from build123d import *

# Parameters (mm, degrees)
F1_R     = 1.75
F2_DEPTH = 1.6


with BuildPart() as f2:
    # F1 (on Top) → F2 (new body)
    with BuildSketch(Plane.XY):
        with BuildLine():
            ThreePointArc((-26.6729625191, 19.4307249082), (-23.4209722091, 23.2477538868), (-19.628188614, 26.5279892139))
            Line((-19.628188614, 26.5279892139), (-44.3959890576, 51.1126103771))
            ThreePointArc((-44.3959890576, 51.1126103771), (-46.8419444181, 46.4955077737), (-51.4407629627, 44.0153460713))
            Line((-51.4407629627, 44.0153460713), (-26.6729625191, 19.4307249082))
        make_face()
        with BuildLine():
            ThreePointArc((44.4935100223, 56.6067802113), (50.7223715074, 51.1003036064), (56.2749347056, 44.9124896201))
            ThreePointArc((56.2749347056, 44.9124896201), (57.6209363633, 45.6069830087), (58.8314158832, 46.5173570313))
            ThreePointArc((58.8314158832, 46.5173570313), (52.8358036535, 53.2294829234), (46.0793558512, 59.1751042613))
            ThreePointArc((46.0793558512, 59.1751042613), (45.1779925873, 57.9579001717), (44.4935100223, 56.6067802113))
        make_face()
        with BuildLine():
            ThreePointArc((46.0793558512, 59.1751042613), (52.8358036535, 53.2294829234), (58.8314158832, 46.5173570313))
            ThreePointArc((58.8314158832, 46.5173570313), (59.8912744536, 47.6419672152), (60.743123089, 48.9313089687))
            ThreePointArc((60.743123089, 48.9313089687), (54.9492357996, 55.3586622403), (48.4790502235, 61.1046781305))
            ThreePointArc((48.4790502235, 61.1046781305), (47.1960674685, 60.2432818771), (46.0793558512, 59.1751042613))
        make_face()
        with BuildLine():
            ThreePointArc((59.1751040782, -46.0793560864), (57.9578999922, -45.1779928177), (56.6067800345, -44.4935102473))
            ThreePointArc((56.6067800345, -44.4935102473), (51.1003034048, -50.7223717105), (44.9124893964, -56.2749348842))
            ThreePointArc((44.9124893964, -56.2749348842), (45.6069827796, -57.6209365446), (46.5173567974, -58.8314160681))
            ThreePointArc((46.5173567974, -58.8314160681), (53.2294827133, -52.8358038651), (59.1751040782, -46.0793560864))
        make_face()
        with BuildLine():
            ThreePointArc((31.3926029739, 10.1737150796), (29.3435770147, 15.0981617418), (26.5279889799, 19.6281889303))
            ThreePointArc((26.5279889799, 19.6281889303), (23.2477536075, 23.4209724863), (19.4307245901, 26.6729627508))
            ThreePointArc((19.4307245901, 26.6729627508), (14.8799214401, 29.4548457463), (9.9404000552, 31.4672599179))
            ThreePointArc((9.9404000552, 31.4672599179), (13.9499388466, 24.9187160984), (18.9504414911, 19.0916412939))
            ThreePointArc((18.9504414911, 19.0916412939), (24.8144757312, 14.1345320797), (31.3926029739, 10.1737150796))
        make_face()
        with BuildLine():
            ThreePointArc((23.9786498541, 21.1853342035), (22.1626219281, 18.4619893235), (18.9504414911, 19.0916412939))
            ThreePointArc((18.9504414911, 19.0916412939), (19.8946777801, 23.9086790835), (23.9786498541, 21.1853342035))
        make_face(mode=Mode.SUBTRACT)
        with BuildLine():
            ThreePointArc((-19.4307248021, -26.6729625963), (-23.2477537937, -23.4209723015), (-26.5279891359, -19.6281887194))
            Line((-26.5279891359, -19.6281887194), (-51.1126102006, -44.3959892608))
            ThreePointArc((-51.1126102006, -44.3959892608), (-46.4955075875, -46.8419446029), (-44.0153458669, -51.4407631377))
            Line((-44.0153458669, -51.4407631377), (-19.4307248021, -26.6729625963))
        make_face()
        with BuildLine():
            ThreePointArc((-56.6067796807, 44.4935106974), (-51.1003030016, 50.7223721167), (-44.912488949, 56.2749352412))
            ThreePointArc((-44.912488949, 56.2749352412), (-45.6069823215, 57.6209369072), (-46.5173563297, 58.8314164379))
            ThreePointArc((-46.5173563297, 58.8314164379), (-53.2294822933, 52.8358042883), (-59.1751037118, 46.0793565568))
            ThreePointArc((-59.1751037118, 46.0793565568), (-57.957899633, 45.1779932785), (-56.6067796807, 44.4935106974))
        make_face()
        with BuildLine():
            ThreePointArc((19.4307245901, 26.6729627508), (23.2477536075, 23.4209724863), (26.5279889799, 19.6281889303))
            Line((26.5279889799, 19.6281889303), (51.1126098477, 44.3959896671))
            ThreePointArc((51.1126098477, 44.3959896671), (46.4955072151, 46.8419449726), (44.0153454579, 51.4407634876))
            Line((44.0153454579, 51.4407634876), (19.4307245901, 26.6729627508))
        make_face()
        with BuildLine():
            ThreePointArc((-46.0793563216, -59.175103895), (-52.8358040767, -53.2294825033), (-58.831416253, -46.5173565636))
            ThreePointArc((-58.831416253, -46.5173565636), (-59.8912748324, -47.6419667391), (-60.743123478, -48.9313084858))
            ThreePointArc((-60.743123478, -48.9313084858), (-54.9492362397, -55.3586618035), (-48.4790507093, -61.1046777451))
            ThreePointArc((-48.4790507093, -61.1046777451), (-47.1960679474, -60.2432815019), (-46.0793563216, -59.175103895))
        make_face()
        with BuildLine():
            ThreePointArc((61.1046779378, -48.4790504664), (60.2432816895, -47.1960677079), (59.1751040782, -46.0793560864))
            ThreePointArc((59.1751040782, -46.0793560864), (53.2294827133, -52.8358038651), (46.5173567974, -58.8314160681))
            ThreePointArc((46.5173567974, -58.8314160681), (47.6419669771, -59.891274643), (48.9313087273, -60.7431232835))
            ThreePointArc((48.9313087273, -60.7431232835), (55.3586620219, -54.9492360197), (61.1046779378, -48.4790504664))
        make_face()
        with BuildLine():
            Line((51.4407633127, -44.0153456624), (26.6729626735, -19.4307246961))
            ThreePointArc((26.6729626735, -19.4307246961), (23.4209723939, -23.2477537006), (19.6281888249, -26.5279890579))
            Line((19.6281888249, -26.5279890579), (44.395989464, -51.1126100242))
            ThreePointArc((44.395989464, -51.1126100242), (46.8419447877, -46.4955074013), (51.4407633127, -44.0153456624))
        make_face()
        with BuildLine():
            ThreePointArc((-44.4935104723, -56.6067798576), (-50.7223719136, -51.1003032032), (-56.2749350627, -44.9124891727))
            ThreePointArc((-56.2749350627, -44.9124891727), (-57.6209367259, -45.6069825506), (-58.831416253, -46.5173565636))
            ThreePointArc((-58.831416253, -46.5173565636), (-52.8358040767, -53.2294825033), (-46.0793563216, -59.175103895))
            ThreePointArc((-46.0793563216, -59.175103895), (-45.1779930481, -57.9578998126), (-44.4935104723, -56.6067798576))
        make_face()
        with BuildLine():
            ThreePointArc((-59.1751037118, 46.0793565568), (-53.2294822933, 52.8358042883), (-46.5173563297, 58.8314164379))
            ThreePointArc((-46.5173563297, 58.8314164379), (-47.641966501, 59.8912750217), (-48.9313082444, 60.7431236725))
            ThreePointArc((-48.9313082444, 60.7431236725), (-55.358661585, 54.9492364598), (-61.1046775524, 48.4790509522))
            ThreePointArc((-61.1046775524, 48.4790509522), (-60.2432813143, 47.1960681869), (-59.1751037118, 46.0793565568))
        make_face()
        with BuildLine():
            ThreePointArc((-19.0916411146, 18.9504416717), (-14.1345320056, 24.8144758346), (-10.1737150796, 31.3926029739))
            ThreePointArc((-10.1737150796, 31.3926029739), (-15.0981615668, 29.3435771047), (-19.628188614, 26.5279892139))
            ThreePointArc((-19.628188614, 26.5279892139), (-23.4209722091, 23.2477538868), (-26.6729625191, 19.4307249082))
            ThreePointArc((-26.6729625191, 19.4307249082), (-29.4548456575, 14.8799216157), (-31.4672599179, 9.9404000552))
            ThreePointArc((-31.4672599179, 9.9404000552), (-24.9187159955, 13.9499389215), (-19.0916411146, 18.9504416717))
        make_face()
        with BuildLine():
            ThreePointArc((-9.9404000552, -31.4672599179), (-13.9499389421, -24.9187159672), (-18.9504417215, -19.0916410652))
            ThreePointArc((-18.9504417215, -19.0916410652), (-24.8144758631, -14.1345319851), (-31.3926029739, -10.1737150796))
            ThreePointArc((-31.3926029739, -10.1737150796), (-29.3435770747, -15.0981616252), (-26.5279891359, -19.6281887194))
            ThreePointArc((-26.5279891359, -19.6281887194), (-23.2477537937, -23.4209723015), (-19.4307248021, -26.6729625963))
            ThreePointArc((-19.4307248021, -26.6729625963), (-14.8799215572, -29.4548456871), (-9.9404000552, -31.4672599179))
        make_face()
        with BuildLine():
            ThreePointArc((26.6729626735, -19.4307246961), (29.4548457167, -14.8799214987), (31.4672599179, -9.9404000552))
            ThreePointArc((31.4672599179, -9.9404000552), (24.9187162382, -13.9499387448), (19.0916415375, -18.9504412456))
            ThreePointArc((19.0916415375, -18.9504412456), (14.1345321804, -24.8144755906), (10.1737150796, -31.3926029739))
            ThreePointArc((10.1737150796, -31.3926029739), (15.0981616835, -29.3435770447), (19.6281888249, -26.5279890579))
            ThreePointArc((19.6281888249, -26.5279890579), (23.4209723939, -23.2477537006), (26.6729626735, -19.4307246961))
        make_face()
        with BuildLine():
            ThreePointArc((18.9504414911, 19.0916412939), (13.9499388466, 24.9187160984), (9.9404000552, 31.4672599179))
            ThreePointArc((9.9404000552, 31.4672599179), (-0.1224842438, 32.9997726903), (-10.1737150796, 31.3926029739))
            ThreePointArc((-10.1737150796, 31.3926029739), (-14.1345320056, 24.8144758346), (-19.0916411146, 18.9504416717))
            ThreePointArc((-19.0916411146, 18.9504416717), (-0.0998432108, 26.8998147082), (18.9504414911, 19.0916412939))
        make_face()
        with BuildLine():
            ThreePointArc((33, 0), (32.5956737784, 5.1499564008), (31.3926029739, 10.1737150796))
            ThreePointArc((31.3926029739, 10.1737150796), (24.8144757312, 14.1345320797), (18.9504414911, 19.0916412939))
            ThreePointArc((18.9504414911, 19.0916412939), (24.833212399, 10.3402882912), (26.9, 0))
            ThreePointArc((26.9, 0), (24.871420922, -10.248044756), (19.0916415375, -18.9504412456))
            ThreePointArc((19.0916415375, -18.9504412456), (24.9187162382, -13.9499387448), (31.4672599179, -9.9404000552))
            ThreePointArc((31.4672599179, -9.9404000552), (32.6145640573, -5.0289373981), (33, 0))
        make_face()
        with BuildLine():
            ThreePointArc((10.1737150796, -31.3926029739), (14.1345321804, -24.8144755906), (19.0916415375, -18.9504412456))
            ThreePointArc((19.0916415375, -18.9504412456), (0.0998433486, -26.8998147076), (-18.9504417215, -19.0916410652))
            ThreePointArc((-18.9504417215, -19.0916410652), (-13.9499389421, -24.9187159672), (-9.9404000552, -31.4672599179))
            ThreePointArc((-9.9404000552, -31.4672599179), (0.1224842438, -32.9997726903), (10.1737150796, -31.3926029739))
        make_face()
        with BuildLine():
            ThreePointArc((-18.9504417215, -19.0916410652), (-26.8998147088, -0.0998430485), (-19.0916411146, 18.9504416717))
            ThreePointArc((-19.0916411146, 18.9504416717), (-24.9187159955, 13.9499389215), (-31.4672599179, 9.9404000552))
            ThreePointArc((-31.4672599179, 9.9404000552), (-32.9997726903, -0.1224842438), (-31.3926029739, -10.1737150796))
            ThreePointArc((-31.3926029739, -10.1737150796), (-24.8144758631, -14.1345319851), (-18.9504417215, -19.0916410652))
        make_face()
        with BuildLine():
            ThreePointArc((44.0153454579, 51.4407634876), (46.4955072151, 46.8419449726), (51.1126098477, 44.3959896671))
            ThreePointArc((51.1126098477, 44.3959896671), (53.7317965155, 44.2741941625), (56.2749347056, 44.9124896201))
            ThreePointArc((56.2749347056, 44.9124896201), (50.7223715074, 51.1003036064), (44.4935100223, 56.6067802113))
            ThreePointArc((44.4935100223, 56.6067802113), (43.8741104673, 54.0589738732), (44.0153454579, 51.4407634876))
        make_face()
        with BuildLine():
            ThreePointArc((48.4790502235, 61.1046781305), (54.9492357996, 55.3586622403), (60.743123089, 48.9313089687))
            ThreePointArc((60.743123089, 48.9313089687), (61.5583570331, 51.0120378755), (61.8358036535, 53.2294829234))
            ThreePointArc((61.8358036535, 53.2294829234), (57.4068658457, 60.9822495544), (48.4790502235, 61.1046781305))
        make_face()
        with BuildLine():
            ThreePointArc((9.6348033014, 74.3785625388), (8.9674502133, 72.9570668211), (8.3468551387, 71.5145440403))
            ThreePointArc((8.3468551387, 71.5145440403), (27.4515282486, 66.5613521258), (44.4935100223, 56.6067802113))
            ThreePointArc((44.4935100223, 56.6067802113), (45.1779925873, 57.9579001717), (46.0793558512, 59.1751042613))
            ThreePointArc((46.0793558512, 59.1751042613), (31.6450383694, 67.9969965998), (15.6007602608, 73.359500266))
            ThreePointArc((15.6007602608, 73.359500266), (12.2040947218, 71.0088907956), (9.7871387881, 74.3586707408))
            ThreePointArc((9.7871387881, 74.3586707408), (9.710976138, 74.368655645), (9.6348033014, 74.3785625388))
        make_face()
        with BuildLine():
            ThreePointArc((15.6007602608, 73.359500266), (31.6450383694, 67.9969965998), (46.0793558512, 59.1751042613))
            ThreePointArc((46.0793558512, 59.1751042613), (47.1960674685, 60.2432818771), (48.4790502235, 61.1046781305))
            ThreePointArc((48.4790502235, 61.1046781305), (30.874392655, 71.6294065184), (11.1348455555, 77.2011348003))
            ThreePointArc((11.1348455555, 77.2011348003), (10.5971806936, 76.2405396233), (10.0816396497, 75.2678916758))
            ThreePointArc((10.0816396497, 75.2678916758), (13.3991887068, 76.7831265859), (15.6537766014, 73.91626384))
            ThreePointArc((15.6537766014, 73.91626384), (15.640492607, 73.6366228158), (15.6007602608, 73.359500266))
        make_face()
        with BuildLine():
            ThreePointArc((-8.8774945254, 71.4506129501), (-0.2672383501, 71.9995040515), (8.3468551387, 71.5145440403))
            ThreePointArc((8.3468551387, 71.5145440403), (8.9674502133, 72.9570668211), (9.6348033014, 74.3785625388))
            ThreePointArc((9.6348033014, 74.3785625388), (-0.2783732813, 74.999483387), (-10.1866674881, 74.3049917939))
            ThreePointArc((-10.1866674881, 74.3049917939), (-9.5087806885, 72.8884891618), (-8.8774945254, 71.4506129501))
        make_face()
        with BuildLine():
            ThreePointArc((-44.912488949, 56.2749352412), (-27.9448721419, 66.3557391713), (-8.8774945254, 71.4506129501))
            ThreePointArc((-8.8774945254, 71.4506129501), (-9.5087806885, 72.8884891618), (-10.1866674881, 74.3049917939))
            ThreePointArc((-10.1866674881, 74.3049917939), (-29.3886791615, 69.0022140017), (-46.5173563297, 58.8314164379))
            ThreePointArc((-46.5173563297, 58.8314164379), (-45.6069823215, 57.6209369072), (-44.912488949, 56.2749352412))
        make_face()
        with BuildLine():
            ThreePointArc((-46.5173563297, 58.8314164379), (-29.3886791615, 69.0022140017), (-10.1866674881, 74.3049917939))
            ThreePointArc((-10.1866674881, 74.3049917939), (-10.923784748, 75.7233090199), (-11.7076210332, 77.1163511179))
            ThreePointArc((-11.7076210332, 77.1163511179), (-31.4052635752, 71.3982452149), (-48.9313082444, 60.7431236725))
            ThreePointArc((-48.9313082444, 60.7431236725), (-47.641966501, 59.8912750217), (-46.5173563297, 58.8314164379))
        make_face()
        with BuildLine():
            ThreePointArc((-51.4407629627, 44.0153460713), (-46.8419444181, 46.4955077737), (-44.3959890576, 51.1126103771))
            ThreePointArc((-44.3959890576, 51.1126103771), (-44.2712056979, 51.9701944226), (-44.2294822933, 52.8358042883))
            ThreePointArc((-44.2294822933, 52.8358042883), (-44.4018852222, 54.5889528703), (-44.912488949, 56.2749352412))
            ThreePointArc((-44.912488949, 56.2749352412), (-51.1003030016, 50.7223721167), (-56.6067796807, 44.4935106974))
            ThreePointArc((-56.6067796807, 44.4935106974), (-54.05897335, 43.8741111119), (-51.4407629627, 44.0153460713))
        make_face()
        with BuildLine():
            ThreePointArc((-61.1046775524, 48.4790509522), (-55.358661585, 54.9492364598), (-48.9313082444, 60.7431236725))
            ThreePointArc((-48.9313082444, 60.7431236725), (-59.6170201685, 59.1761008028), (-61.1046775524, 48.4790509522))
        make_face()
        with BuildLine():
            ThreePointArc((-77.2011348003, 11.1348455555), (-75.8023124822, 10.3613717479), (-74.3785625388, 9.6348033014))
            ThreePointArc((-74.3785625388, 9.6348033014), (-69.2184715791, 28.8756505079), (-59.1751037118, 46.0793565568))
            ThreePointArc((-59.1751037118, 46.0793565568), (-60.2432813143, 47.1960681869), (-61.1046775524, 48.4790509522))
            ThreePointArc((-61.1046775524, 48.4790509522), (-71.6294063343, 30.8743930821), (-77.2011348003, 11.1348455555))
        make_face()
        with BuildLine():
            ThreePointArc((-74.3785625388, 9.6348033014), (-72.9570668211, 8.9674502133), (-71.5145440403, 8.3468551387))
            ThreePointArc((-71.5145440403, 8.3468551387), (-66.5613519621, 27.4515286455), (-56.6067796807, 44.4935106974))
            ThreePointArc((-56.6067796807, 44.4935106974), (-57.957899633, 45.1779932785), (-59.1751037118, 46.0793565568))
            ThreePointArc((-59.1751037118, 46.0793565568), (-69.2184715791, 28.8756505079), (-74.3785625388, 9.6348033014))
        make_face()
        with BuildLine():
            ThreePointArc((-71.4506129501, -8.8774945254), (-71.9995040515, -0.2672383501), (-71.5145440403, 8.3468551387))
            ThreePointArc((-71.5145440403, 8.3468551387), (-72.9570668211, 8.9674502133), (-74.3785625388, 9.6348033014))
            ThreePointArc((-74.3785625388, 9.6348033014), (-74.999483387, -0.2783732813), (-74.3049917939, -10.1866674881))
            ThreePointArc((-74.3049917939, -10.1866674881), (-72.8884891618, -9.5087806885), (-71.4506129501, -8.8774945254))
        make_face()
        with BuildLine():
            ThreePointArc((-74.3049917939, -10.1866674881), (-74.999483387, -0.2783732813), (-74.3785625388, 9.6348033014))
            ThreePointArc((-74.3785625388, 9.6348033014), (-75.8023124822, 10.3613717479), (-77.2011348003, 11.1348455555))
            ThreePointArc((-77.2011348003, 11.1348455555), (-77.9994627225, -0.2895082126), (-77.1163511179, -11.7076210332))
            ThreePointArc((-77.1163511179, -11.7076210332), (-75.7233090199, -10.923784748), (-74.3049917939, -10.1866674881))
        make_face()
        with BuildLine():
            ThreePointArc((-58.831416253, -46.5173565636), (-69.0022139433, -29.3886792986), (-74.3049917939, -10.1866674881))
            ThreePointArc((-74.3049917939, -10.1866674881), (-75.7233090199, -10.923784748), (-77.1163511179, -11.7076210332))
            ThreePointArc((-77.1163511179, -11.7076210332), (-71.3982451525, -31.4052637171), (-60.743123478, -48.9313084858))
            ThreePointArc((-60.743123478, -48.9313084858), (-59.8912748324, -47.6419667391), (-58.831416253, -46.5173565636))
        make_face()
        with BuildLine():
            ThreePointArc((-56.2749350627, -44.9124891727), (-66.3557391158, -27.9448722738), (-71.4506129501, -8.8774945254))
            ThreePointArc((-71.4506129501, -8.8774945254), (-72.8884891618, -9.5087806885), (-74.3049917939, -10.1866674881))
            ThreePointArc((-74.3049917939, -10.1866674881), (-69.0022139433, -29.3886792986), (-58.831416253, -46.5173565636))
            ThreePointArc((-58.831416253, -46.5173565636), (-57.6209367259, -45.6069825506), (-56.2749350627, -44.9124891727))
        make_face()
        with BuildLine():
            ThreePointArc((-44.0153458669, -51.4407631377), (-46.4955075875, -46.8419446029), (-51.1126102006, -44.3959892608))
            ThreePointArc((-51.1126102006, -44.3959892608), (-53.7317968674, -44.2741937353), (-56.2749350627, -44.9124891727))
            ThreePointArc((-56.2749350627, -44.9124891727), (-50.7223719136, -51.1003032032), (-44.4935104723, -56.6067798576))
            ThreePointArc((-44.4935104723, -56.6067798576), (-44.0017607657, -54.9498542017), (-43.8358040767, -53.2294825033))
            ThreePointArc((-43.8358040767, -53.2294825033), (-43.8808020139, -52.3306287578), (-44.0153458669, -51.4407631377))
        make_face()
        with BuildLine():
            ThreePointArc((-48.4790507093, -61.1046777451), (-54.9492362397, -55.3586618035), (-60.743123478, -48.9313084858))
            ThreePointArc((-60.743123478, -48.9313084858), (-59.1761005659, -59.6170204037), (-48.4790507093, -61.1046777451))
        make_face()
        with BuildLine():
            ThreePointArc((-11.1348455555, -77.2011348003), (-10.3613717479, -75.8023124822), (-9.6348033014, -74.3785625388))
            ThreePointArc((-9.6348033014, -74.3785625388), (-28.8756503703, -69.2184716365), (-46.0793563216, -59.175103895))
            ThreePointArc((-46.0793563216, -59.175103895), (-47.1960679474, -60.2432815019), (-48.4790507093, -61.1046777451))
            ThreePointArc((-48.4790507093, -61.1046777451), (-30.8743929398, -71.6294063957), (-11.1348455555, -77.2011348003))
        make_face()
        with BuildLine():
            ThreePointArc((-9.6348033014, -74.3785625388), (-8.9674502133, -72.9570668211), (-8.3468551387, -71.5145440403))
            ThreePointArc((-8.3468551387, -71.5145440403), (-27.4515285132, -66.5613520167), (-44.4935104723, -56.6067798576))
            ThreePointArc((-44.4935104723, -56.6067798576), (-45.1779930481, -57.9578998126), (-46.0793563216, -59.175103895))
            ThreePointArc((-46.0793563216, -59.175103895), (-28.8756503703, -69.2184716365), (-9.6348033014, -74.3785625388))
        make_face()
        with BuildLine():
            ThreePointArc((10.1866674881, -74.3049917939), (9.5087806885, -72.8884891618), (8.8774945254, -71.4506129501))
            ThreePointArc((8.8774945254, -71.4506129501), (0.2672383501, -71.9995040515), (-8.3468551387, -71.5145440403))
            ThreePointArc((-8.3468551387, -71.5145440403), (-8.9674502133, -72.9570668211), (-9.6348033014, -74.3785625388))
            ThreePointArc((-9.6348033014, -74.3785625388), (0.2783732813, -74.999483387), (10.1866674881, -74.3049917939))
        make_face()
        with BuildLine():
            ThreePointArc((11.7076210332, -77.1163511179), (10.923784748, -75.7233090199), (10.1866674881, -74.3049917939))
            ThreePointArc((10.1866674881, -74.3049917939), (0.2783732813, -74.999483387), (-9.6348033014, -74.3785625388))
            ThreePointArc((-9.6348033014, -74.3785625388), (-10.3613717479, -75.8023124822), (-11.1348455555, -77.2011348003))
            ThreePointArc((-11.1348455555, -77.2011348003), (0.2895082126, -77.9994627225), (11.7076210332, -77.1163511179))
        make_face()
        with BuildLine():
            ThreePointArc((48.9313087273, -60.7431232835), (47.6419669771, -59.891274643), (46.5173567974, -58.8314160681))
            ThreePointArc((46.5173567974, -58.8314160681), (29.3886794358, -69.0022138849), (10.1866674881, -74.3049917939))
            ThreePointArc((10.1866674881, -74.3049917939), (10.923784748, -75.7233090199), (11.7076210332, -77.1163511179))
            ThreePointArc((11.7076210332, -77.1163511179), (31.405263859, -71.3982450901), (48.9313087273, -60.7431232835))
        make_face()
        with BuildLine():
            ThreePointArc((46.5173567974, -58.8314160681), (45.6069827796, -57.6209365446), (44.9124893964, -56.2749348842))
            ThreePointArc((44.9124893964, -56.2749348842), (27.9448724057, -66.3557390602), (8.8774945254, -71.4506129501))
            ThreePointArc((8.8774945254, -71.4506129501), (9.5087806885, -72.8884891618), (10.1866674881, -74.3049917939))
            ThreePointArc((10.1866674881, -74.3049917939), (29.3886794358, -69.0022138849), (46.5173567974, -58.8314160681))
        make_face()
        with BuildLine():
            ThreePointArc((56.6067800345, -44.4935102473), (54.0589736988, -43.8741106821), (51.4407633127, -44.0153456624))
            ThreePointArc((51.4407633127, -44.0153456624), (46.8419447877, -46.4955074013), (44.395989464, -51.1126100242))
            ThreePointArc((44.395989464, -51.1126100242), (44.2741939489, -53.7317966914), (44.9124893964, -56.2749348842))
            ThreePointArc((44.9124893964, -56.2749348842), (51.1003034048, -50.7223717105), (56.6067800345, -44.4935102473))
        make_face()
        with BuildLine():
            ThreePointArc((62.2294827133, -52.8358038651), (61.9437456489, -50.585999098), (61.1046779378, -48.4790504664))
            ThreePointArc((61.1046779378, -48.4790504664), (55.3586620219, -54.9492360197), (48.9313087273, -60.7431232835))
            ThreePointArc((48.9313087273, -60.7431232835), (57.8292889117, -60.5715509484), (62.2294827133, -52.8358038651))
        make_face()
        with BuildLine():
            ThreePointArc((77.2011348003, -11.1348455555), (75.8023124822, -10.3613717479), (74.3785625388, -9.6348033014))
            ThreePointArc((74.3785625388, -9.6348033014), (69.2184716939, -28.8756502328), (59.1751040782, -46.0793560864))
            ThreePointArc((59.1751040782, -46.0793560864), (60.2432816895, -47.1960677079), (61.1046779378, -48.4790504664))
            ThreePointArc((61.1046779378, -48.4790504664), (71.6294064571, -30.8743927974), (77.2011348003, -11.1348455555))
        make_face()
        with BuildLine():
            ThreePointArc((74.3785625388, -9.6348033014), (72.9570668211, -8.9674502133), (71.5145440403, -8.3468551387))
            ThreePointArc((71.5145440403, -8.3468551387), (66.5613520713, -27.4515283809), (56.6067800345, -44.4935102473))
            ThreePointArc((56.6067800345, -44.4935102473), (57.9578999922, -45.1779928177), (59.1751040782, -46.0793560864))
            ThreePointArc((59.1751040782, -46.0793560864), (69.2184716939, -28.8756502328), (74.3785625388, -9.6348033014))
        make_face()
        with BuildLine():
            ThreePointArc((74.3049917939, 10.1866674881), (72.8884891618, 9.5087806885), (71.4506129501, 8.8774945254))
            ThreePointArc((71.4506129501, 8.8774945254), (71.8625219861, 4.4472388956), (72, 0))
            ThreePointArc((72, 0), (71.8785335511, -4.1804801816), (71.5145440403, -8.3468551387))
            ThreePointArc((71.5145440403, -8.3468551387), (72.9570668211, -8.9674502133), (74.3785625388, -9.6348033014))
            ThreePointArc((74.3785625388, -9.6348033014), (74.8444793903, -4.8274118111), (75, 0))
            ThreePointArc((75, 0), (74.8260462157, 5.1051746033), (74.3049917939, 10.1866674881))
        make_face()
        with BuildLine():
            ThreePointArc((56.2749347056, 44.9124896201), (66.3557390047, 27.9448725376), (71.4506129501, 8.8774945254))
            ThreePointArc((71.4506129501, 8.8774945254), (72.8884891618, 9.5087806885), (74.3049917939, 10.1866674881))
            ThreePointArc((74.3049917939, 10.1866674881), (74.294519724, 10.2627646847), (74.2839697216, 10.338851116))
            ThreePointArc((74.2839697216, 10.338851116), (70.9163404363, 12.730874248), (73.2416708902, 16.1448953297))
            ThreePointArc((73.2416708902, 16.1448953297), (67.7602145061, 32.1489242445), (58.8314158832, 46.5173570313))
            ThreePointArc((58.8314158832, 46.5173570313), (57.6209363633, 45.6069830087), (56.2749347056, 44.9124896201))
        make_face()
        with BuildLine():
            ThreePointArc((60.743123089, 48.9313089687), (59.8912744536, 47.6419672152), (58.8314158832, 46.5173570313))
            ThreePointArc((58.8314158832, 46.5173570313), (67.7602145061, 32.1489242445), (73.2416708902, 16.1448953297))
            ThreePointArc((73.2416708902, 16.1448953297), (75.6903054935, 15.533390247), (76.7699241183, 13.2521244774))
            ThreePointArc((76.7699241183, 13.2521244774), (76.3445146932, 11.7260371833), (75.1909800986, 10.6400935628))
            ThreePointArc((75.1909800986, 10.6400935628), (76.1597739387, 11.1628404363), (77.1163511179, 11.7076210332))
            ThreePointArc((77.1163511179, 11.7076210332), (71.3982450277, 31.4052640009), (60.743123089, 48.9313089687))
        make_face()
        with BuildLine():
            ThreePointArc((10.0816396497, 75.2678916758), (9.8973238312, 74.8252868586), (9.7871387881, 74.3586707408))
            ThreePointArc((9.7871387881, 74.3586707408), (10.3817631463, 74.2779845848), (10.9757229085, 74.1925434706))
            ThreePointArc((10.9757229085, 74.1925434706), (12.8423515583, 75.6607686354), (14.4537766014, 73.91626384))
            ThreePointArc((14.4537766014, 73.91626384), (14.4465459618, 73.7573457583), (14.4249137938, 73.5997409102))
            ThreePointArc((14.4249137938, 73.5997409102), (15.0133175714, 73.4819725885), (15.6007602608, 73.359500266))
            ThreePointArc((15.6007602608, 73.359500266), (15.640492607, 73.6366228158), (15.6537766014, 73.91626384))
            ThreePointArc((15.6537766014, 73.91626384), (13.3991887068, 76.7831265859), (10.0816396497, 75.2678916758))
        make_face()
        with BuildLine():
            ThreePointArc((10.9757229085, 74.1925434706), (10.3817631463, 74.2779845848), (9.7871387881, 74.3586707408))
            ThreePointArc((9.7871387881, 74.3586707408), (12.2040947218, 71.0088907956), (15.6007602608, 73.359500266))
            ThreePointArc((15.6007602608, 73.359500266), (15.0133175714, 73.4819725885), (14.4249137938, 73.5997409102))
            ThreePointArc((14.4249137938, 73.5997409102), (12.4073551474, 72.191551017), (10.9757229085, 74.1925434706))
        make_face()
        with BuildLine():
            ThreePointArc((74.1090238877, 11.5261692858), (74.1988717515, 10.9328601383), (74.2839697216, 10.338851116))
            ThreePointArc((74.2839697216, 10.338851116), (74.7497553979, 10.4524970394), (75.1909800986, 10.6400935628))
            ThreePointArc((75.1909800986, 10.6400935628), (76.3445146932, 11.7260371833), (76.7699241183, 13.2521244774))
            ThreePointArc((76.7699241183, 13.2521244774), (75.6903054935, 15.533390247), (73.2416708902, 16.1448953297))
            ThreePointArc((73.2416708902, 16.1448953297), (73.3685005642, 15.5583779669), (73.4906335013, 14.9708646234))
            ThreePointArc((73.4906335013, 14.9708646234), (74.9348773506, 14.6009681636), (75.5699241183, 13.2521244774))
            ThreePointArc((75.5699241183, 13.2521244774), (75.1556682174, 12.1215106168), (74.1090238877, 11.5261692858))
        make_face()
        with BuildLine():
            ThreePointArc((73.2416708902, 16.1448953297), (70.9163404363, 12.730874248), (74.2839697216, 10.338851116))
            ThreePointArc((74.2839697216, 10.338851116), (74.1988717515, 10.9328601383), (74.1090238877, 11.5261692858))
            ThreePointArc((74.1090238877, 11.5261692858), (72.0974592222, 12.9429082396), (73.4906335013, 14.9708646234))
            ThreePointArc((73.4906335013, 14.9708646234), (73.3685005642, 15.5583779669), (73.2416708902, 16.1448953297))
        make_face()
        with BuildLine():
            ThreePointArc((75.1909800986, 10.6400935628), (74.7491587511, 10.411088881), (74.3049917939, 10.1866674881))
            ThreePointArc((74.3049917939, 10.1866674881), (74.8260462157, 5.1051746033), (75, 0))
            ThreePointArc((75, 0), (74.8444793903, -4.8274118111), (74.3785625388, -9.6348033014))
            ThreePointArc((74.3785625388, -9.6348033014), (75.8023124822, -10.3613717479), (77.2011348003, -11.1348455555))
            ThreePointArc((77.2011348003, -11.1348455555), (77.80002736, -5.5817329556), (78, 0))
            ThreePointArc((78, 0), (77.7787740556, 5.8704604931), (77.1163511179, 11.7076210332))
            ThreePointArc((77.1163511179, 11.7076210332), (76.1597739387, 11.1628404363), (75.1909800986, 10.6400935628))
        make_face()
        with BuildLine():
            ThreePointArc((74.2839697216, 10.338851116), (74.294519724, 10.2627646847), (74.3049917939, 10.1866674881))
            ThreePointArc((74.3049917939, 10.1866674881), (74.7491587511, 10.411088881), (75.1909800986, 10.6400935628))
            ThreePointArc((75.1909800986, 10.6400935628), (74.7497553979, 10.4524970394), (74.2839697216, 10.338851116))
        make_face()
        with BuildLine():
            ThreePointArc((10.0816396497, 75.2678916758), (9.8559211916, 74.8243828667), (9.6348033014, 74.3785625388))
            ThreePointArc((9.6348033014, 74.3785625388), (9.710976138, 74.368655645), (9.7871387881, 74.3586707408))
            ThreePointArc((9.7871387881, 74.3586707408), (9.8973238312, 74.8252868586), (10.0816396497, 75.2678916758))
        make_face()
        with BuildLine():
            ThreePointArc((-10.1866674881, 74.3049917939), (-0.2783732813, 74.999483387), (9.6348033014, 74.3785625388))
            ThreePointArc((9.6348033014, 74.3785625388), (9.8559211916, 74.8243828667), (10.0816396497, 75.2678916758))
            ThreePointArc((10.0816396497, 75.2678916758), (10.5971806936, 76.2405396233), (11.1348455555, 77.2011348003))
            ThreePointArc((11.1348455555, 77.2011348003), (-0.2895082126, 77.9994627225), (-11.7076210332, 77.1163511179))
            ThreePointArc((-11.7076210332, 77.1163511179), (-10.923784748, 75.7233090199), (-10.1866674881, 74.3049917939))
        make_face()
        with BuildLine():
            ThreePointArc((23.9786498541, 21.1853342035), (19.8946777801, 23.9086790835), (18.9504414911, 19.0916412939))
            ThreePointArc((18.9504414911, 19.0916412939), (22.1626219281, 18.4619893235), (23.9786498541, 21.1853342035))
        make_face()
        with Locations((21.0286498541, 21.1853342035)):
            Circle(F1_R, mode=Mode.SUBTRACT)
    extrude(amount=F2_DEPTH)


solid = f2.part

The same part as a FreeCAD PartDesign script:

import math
import FreeCAD as App
import Part
import Sketcher
from FreeCAD import Vector
Q = App.Units.Quantity

doc = App.newDocument("Part")
body = doc.addObject("PartDesign::Body", "Body")

sketch1 = body.newObject("Sketcher::SketchObject", "Sketch")
sketch1.AttachmentSupport = (doc.getObject("XY_Plane"), [""])
sketch1.MapMode = "FlatFace"
sketch1.addGeometry([
    Part.ArcOfCircle(Part.Circle(Vector(0, 0, 0), Vector(0, 0, 1), 78), math.radians(8.632589), math.radians(38.853002)),
    Part.ArcOfCircle(Part.Circle(Vector(52.835804, 53.229483, 0), Vector(0, 0, 1), 9), math.radians(-28.527133), math.radians(0)),
    Part.ArcOfCircle(Part.Circle(Vector(52.835804, 53.229483, 0), Vector(0, 0, 1), 9), math.radians(0), math.radians(118.952457)),
    Part.ArcOfCircle(Part.Circle(Vector(0, 0, 0), Vector(0, 0, 1), 78), math.radians(51.572322), math.radians(81.792735)),
    Part.ArcOfCircle(Part.Circle(Vector(0, 0, 0), Vector(0, 0, 1), 78), math.radians(81.792735), math.radians(98.632589)),
    Part.ArcOfCircle(Part.Circle(Vector(0, 0, 0), Vector(0, 0, 1), 78), math.radians(98.632589), math.radians(128.853001)),
    Part.ArcOfCircle(Part.Circle(Vector(-53.229482, 52.835804, 0), Vector(0, 0, 1), 9), math.radians(61.472866), math.radians(208.952457)),
    Part.ArcOfCircle(Part.Circle(Vector(0, 0, 0), Vector(0, 0, 1), 78), math.radians(141.572322), math.radians(188.632589)),
    Part.ArcOfCircle(Part.Circle(Vector(0, 0, 0), Vector(0, 0, 1), 78), math.radians(-171.367411), math.radians(-141.146999)),
    Part.ArcOfCircle(Part.Circle(Vector(-52.835804, -53.229483, 0), Vector(0, 0, 1), 9), math.radians(151.472866), math.radians(298.952457)),
    Part.ArcOfCircle(Part.Circle(Vector(0, 0, 0), Vector(0, 0, 1), 78), math.radians(-128.427678), math.radians(-98.207265)),
    Part.ArcOfCircle(Part.Circle(Vector(0, 0, 0), Vector(0, 0, 1), 78), math.radians(-98.207265), math.radians(-81.367411)),
    Part.ArcOfCircle(Part.Circle(Vector(0, 0, 0), Vector(0, 0, 1), 78), math.radians(-81.367411), math.radians(-51.146998)),
    Part.ArcOfCircle(Part.Circle(Vector(53.229483, -52.835804, 0), Vector(0, 0, 1), 9), math.radians(-118.527134), math.radians(0)),
    Part.ArcOfCircle(Part.Circle(Vector(53.229483, -52.835804, 0), Vector(0, 0, 1), 9), math.radians(0), math.radians(28.952457)),
    Part.ArcOfCircle(Part.Circle(Vector(0, 0, 0), Vector(0, 0, 1), 78), math.radians(-38.427678), math.radians(-8.207265)),
    Part.ArcOfCircle(Part.Circle(Vector(0, 0, 0), Vector(0, 0, 1), 78), math.radians(-8.207265), math.radians(0)),
    Part.ArcOfCircle(Part.Circle(Vector(0, 0, 0), Vector(0, 0, 1), 78), math.radians(0), math.radians(8.632589)),
    Part.LineSegment(Vector(-44.015346, -51.440763, 0), Vector(-19.430725, -26.672963, 0)),
    Part.ArcOfCircle(Part.Circle(Vector(0, 0, 0), Vector(0, 0, 1), 33), math.radians(-126.072596), math.radians(-107.531149)),
    Part.ArcOfCircle(Part.Circle(Vector(0, 0, 0), Vector(0, 0, 1), 33), math.radians(-107.531149), math.radians(-72.043527)),
    Part.ArcOfCircle(Part.Circle(Vector(0, 0, 0), Vector(0, 0, 1), 33), math.radians(-72.043527), math.radians(-53.50208)),
    Part.LineSegment(Vector(19.628189, -26.527989, 0), Vector(44.395989, -51.11261, 0)),
    Part.ArcOfCircle(Part.Circle(Vector(53.229483, -52.835804, 0), Vector(0, 0, 1), 9), math.radians(168.96165), math.radians(202.465414)),
    Part.ArcOfCircle(Part.Circle(Vector(0, 0, 0), Vector(0, 0, 1), 72), math.radians(-82.917491), math.radians(-51.406966)),
    Part.ArcOfCircle(Part.Circle(Vector(0, 0, 0), Vector(0, 0, 1), 72), math.radians(-96.657185), math.radians(-82.917491)),
    Part.ArcOfCircle(Part.Circle(Vector(0, 0, 0), Vector(0, 0, 1), 72), math.radians(-128.167711), math.radians(-96.657185)),
    Part.ArcOfCircle(Part.Circle(Vector(-52.835804, -53.229483, 0), Vector(0, 0, 1), 9), math.radians(-22.04009), math.radians(0)),
    Part.ArcOfCircle(Part.Circle(Vector(-52.835804, -53.229483, 0), Vector(0, 0, 1), 9), math.radians(0), math.radians(11.463673)),
    Part.ArcOfCircle(Part.Circle(Vector(0, 0, 0), Vector(0, 0, 1), 33), math.radians(143.927403), math.radians(162.468851)),
    Part.ArcOfCircle(Part.Circle(Vector(0, 0, 0), Vector(0, 0, 1), 33), math.radians(162.468851), math.radians(197.956473)),
    Part.ArcOfCircle(Part.Circle(Vector(0, 0, 0), Vector(0, 0, 1), 33), math.radians(-162.043527), math.radians(-143.50208)),
    Part.LineSegment(Vector(-26.527989, -19.628189, 0), Vector(-51.11261, -44.395989, 0)),
    Part.ArcOfCircle(Part.Circle(Vector(-52.835804, -53.229483, 0), Vector(0, 0, 1), 9), math.radians(78.96165), math.radians(112.465414)),
    Part.ArcOfCircle(Part.Circle(Vector(0, 0, 0), Vector(0, 0, 1), 72), math.radians(-172.917491), math.radians(-141.406966)),
    Part.ArcOfCircle(Part.Circle(Vector(0, 0, 0), Vector(0, 0, 1), 72), math.radians(141.832289), math.radians(187.082509)),
    Part.ArcOfCircle(Part.Circle(Vector(-53.229482, 52.835804, 0), Vector(0, 0, 1), 9), math.radians(-112.040091), math.radians(-78.536327)),
    Part.LineSegment(Vector(-51.440763, 44.015346, 0), Vector(-26.672963, 19.430725, 0)),
    Part.ArcOfCircle(Part.Circle(Vector(0, 0, 0), Vector(0, 0, 1), 26.9), math.radians(45.212662), math.radians(135.212662)),
    Part.ArcOfCircle(Part.Circle(Vector(0, 0, 0), Vector(0, 0, 1), 26.9), math.radians(0), math.radians(45.212662)),
    Part.ArcOfCircle(Part.Circle(Vector(0, 0, 0), Vector(0, 0, 1), 26.9), math.radians(-44.787337), math.radians(0)),
    Part.ArcOfCircle(Part.Circle(Vector(0, 0, 0), Vector(0, 0, 1), 26.9), math.radians(-134.787338), math.radians(-44.787337)),
    Part.ArcOfCircle(Part.Circle(Vector(0, 0, 0), Vector(0, 0, 1), 26.9), math.radians(135.212662), math.radians(225.212662)),
    Part.LineSegment(Vector(51.440763, -44.015346, 0), Vector(26.672963, -19.430725, 0)),
    Part.ArcOfCircle(Part.Circle(Vector(0, 0, 0), Vector(0, 0, 1), 33), math.radians(-36.072596), math.radians(-17.531149)),
    Part.ArcOfCircle(Part.Circle(Vector(0, 0, 0), Vector(0, 0, 1), 33), math.radians(-17.531149), math.radians(0)),
    Part.ArcOfCircle(Part.Circle(Vector(0, 0, 0), Vector(0, 0, 1), 33), math.radians(0), math.radians(36.49792)),
    Part.LineSegment(Vector(26.527989, 19.628189, 0), Vector(51.11261, 44.39599, 0)),
    Part.ArcOfCircle(Part.Circle(Vector(52.835804, 53.229483, 0), Vector(0, 0, 1), 9), math.radians(-101.038349), math.radians(-67.534586)),
    Part.ArcOfCircle(Part.Circle(Vector(0, 0, 0), Vector(0, 0, 1), 72), math.radians(7.082509), math.radians(38.593034)),
    Part.ArcOfCircle(Part.Circle(Vector(0, 0, 0), Vector(0, 0, 1), 72), math.radians(0), math.radians(7.082509)),
    Part.ArcOfCircle(Part.Circle(Vector(0, 0, 0), Vector(0, 0, 1), 72), math.radians(-6.657185), math.radians(0)),
    Part.ArcOfCircle(Part.Circle(Vector(0, 0, 0), Vector(0, 0, 1), 72), math.radians(-38.16771), math.radians(-6.657185)),
    Part.ArcOfCircle(Part.Circle(Vector(53.229483, -52.835804, 0), Vector(0, 0, 1), 9), math.radians(67.95991), math.radians(101.463673)),
    Part.LineSegment(Vector(-19.628189, 26.527989, 0), Vector(-44.395989, 51.11261, 0)),
    Part.ArcOfCircle(Part.Circle(Vector(-53.229482, 52.835804, 0), Vector(0, 0, 1), 9), math.radians(-11.03835), math.radians(0)),
    Part.ArcOfCircle(Part.Circle(Vector(-53.229482, 52.835804, 0), Vector(0, 0, 1), 9), math.radians(0), math.radians(22.465413)),
    Part.ArcOfCircle(Part.Circle(Vector(0, 0, 0), Vector(0, 0, 1), 72), math.radians(97.082509), math.radians(128.593034)),
    Part.ArcOfCircle(Part.Circle(Vector(0, 0, 0), Vector(0, 0, 1), 72), math.radians(83.342815), math.radians(97.082509)),
    Part.ArcOfCircle(Part.Circle(Vector(0, 0, 0), Vector(0, 0, 1), 72), math.radians(51.83229), math.radians(83.342815)),
    Part.ArcOfCircle(Part.Circle(Vector(52.835804, 53.229483, 0), Vector(0, 0, 1), 9), math.radians(157.95991), math.radians(191.463673)),
    Part.LineSegment(Vector(44.015345, 51.440763, 0), Vector(19.430725, 26.672963, 0)),
    Part.ArcOfCircle(Part.Circle(Vector(0, 0, 0), Vector(0, 0, 1), 33), math.radians(53.927404), math.radians(72.468851)),
    Part.ArcOfCircle(Part.Circle(Vector(0, 0, 0), Vector(0, 0, 1), 33), math.radians(72.468851), math.radians(107.956473)),
    Part.ArcOfCircle(Part.Circle(Vector(0, 0, 0), Vector(0, 0, 1), 33), math.radians(107.956473), math.radians(126.497919)),
    Part.Circle(Vector(21.02865, 21.185334, 0), Vector(0, 0, 1), 1.75),
    Part.ArcOfCircle(Part.Circle(Vector(73.819924, 13.252124, 0), Vector(0, 0, 1), 1.75), math.radians(-80.491155), math.radians(0)),
    Part.ArcOfCircle(Part.Circle(Vector(73.819924, 13.252124, 0), Vector(0, 0, 1), 1.75), math.radians(100.845777), math.radians(279.508845)),
    Part.ArcOfCircle(Part.Circle(Vector(73.819924, 13.252124, 0), Vector(0, 0, 1), 1.75), math.radians(0), math.radians(100.845777)),
    Part.ArcOfCircle(Part.Circle(Vector(12.703777, 73.916264, 0), Vector(0, 0, 1), 1.75), math.radians(-10.420453), math.radians(0)),
    Part.ArcOfCircle(Part.Circle(Vector(12.703777, 73.916264, 0), Vector(0, 0, 1), 1.75), math.radians(170.916479), math.radians(349.579547)),
    Part.ArcOfCircle(Part.Circle(Vector(12.703777, 73.916264, 0), Vector(0, 0, 1), 1.75), math.radians(0), math.radians(170.916479)),
], False)
sketch1.addConstraint([
    Sketcher.Constraint("Coincident", 0, 2, 1, 1),
    Sketcher.Constraint("Tangent", 1, 2, 2, 1),
    Sketcher.Constraint("Coincident", 2, 2, 3, 1),
    Sketcher.Constraint("Tangent", 3, 2, 4, 1),
    Sketcher.Constraint("Tangent", 4, 2, 5, 1),
    Sketcher.Constraint("Coincident", 5, 2, 6, 1),
    Sketcher.Constraint("Coincident", 6, 2, 7, 1),
    Sketcher.Constraint("Tangent", 7, 2, 8, 1),
    Sketcher.Constraint("Coincident", 8, 2, 9, 1),
    Sketcher.Constraint("Coincident", 9, 2, 10, 1),
    Sketcher.Constraint("Tangent", 10, 2, 11, 1),
    Sketcher.Constraint("Tangent", 11, 2, 12, 1),
    Sketcher.Constraint("Coincident", 12, 2, 13, 1),
    Sketcher.Constraint("Tangent", 13, 2, 14, 1),
    Sketcher.Constraint("Coincident", 14, 2, 15, 1),
    Sketcher.Constraint("Tangent", 15, 2, 16, 1),
    Sketcher.Constraint("Tangent", 16, 2, 17, 1),
    Sketcher.Constraint("Tangent", 17, 2, 0, 1),
    Sketcher.Constraint("Coincident", 18, 2, 19, 1),
    Sketcher.Constraint("Tangent", 19, 2, 20, 1),
    Sketcher.Constraint("Tangent", 20, 2, 21, 1),
    Sketcher.Constraint("Coincident", 21, 2, 22, 1),
    Sketcher.Constraint("Coincident", 22, 2, 23, 1),
    Sketcher.Constraint("Coincident", 23, 2, 24, 2),
    Sketcher.Constraint("Tangent", 24, 1, 25, 2),
    Sketcher.Constraint("Tangent", 25, 1, 26, 2),
    Sketcher.Constraint("Coincident", 26, 1, 27, 1),
    Sketcher.Constraint("Tangent", 27, 2, 28, 1),
    Sketcher.Constraint("Coincident", 28, 2, 18, 1),
    Sketcher.Constraint("Tangent", 29, 2, 30, 1),
    Sketcher.Constraint("Tangent", 30, 2, 31, 1),
    Sketcher.Constraint("Coincident", 31, 2, 32, 1),
    Sketcher.Constraint("Coincident", 32, 2, 33, 1),
    Sketcher.Constraint("Coincident", 33, 2, 34, 2),
    Sketcher.Constraint("Tangent", 34, 1, 35, 2),
    Sketcher.Constraint("Coincident", 35, 1, 36, 1),
    Sketcher.Constraint("Coincident", 36, 2, 37, 1),
    Sketcher.Constraint("Coincident", 37, 2, 29, 1),
    Sketcher.Constraint("Tangent", 38, 1, 39, 2),
    Sketcher.Constraint("Tangent", 39, 1, 40, 2),
    Sketcher.Constraint("Tangent", 40, 1, 41, 2),
    Sketcher.Constraint("Tangent", 41, 1, 42, 2),
    Sketcher.Constraint("Tangent", 42, 1, 38, 2),
    Sketcher.Constraint("Coincident", 43, 2, 44, 1),
    Sketcher.Constraint("Tangent", 44, 2, 45, 1),
    Sketcher.Constraint("Tangent", 45, 2, 46, 1),
    Sketcher.Constraint("Coincident", 46, 2, 47, 1),
    Sketcher.Constraint("Coincident", 47, 2, 48, 1),
    Sketcher.Constraint("Coincident", 48, 2, 49, 2),
    Sketcher.Constraint("Tangent", 49, 1, 50, 2),
    Sketcher.Constraint("Tangent", 50, 1, 51, 2),
    Sketcher.Constraint("Tangent", 51, 1, 52, 2),
    Sketcher.Constraint("Coincident", 52, 1, 53, 1),
    Sketcher.Constraint("Coincident", 53, 2, 43, 1),
    Sketcher.Constraint("Coincident", 54, 2, 55, 1),
    Sketcher.Constraint("Tangent", 55, 2, 56, 1),
    Sketcher.Constraint("Coincident", 56, 2, 57, 2),
    Sketcher.Constraint("Tangent", 57, 1, 58, 2),
    Sketcher.Constraint("Tangent", 58, 1, 59, 2),
    Sketcher.Constraint("Coincident", 59, 1, 60, 1),
    Sketcher.Constraint("Coincident", 60, 2, 61, 1),
    Sketcher.Constraint("Coincident", 61, 2, 62, 1),
    Sketcher.Constraint("Tangent", 62, 2, 63, 1),
    Sketcher.Constraint("Tangent", 63, 2, 64, 1),
    Sketcher.Constraint("Coincident", 64, 2, 54, 1),
    Sketcher.Constraint("Tangent", 66, 1, 67, 2),
    Sketcher.Constraint("Tangent", 67, 1, 68, 2),
    Sketcher.Constraint("Tangent", 68, 1, 66, 2),
    Sketcher.Constraint("Tangent", 69, 1, 70, 2),
    Sketcher.Constraint("Tangent", 70, 1, 71, 2),
    Sketcher.Constraint("Tangent", 71, 1, 69, 2),
    Sketcher.Constraint("Coincident", 0, 3, -1, 1),
    Sketcher.Constraint("Coincident", 3, 3, -1, 1),
    Sketcher.Constraint("Coincident", 5, 3, -1, 1),
    Sketcher.Constraint("Coincident", 7, 3, -1, 1),
    Sketcher.Constraint("Coincident", 10, 3, -1, 1),
    Sketcher.Constraint("Coincident", 12, 3, -1, 1),
    Sketcher.Constraint("Coincident", 15, 3, -1, 1),
    Sketcher.Constraint("Coincident", 19, 3, -1, 1),
    Sketcher.Constraint("Coincident", 21, 3, -1, 1),
    Sketcher.Constraint("Coincident", 24, 3, -1, 1),
    Sketcher.Constraint("Coincident", 26, 3, -1, 1),
    Sketcher.Constraint("Coincident", 29, 3, -1, 1),
    Sketcher.Constraint("Coincident", 31, 3, -1, 1),
    Sketcher.Constraint("Coincident", 34, 3, -1, 1),
    Sketcher.Constraint("Coincident", 38, 3, -1, 1),
    Sketcher.Constraint("Coincident", 40, 3, -1, 1),
    Sketcher.Constraint("Coincident", 44, 3, -1, 1),
    Sketcher.Constraint("Coincident", 46, 3, -1, 1),
    Sketcher.Constraint("Coincident", 49, 3, -1, 1),
    Sketcher.Constraint("Coincident", 51, 3, -1, 1),
    Sketcher.Constraint("Coincident", 57, 3, -1, 1),
    Sketcher.Constraint("Coincident", 59, 3, -1, 1),
    Sketcher.Constraint("Coincident", 62, 3, -1, 1),
    Sketcher.Constraint("Coincident", 64, 3, -1, 1),
    Sketcher.Constraint("Coincident", 23, 3, 13, 3),
    Sketcher.Constraint("Coincident", 27, 3, 9, 3),
    Sketcher.Constraint("Coincident", 33, 3, 9, 3),
    Sketcher.Constraint("Coincident", 36, 3, 6, 3),
    Sketcher.Constraint("Coincident", 48, 3, 1, 3),
    Sketcher.Constraint("Coincident", 53, 3, 13, 3),
    Sketcher.Constraint("Coincident", 55, 3, 6, 3),
    Sketcher.Constraint("Coincident", 60, 3, 1, 3),
    Sketcher.Constraint("Equal", 1, 2),
    Sketcher.Constraint("Equal", 0, 3),
    Sketcher.Constraint("Equal", 2, 6),
    Sketcher.Constraint("Equal", 5, 7),
    Sketcher.Constraint("Equal", 7, 8),
    Sketcher.Constraint("Equal", 6, 9),
    Sketcher.Constraint("Equal", 8, 10),
    Sketcher.Constraint("Equal", 9, 13),
    Sketcher.Constraint("Equal", 13, 14),
    Sketcher.Constraint("Equal", 12, 15),
    Sketcher.Constraint("Equal", 14, 23),
    Sketcher.Constraint("Equal", 23, 27),
    Sketcher.Constraint("Equal", 27, 28),
    Sketcher.Constraint("Equal", 21, 29),
    Sketcher.Constraint("Equal", 28, 33),
    Sketcher.Constraint("Equal", 26, 34),
    Sketcher.Constraint("Equal", 34, 35),
    Sketcher.Constraint("Equal", 33, 36),
    Sketcher.Constraint("Equal", 31, 44),
    Sketcher.Constraint("Equal", 36, 48),
    Sketcher.Constraint("Equal", 35, 49),
    Sketcher.Constraint("Equal", 51, 52),
    Sketcher.Constraint("Equal", 48, 53),
    Sketcher.Constraint("Equal", 53, 55),
    Sketcher.Constraint("Equal", 55, 56),
    Sketcher.Constraint("Equal", 52, 57),
    Sketcher.Constraint("Equal", 56, 60),
    Sketcher.Constraint("Equal", 46, 62),
    Sketcher.Constraint("Equal", 65, 66),
    Sketcher.Constraint("Equal", 68, 69),
    Sketcher.Constraint("Symmetric", 1, 3, 9, 3, -1, 1),
    Sketcher.Constraint("Symmetric", 6, 3, 13, 3, -1, 1),
    Sketcher.Constraint("PointOnObject", 16, 2, -1),
    Sketcher.Constraint("PointOnObject", 39, 1, -1),
    Sketcher.Constraint("PointOnObject", 45, 2, -1),
    Sketcher.Constraint("PointOnObject", 50, 1, -1),
    Sketcher.Constraint("Perpendicular", 18, 22),
    Sketcher.Constraint("Perpendicular", 22, 32),
    Sketcher.Constraint("Perpendicular", 32, 37),
    Sketcher.Constraint("Parallel", 37, 43),
    Sketcher.Constraint("Perpendicular", 43, 47),
    Sketcher.Constraint("Perpendicular", 47, 54),
    Sketcher.Constraint("Perpendicular", 54, 61),
    Sketcher.Constraint("Horizontal", 60, 3, 1, 2),
    Sketcher.Constraint("Horizontal", 53, 3, 13, 2),
    Sketcher.Constraint("Horizontal", 33, 3, 27, 2),
    Sketcher.Constraint("Horizontal", 56, 3, 55, 2),
    Sketcher.Constraint("Horizontal", 67, 3, 68, 1),
    Sketcher.Constraint("Horizontal", 70, 3, 71, 1),
    Sketcher.Constraint("Equal", 18, 22),
    Sketcher.Constraint("Equal", 22, 32),
    Sketcher.Constraint("Equal", 32, 37),
    Sketcher.Constraint("Equal", 37, 43),
    Sketcher.Constraint("Equal", 43, 47),
    Sketcher.Constraint("Equal", 47, 54),
    Sketcher.Constraint("Equal", 54, 61),
    Sketcher.Constraint("Radius", 0, Q("78 mm")),
    Sketcher.Constraint("Radius", 1, Q("9 mm")),
    Sketcher.Constraint("Radius", 19, Q("33 mm")),
    Sketcher.Constraint("Radius", 24, Q("72 mm")),
    Sketcher.Constraint("Diameter", 65, Q("3.5 mm")),
    Sketcher.Constraint("Radius", 38, Q("26.9 mm")),
    Sketcher.Constraint("DistanceX", 19, 2, -1, 1, Q("9.9404 mm")),
    Sketcher.Constraint("DistanceY", -1, 1, 29, 2, Q("9.9404 mm")),
    Sketcher.Constraint("DistanceY", 44, 2, -1, 1, Q("9.9404 mm")),
    Sketcher.Constraint("DistanceX", -1, 1, 62, 2, Q("9.9404 mm")),
    Sketcher.Constraint("DistanceX", -1, 1, 65, 3, Q("21.02865 mm")),
    Sketcher.Constraint("DistanceY", -1, 1, 0, 2, Q("48.931309 mm")),
    Sketcher.Constraint("DistanceX", -1, 1, 2, 2, Q("48.47905 mm")),
    Sketcher.Constraint("DistanceX", 4, 2, -1, 1, Q("11.707621 mm")),
    Sketcher.Constraint("DistanceX", 5, 2, -1, 1, Q("48.931308 mm")),
    Sketcher.Constraint("DistanceY", -1, 1, 6, 2, Q("48.479051 mm")),
    Sketcher.Constraint("DistanceX", 7, 2, -1, 1, Q("77.116351 mm")),
    Sketcher.Constraint("DistanceX", -1, 1, 11, 2, Q("11.707621 mm")),
    Sketcher.Constraint("DistanceX", -1, 1, 17, 2, Q("77.116351 mm")),
    Sketcher.Constraint("DistanceX", -1, 1, 21, 2, Q("19.628189 mm")),
    Sketcher.Constraint("DistanceX", -1, 1, 22, 2, Q("44.395989 mm")),
    Sketcher.Constraint("DistanceX", -1, 1, 38, 1, Q("18.950441 mm")),
    Sketcher.Constraint("DistanceX", -1, 1, 40, 1, Q("19.091642 mm")),
    Sketcher.Constraint("DistanceX", 41, 1, -1, 1, Q("18.950442 mm")),
    Sketcher.Constraint("DistanceX", 42, 1, -1, 1, Q("19.091641 mm")),
    Sketcher.Constraint("DistanceY", -1, 1, 66, 1, Q("11.526169 mm")),
    Sketcher.Constraint("DistanceY", -1, 1, 69, 1, Q("73.599741 mm")),
    Sketcher.Constraint("DistanceY", -1, 1, 65, 3, Q("21.185334 mm")),
    Sketcher.Constraint("DistanceX", -1, 1, 66, 3, Q("73.819924 mm")),
    Sketcher.Constraint("DistanceY", -1, 1, 66, 3, Q("13.252124 mm")),
    Sketcher.Constraint("DistanceX", -1, 1, 69, 3, Q("12.703777 mm")),
    Sketcher.Constraint("DistanceY", -1, 1, 69, 3, Q("73.916264 mm")),
    Sketcher.Constraint("DistanceX", -1, 1, 3, 2, Q("11.134846 mm")),
    Sketcher.Constraint("DistanceX", 10, 2, -1, 1, Q("11.134846 mm")),
    Sketcher.Constraint("DistanceX", -1, 1, 15, 2, Q("77.201135 mm")),
    Sketcher.Constraint("DistanceX", -1, 1, 20, 2, Q("10.173715 mm")),
    Sketcher.Constraint("DistanceX", -1, 1, 24, 1, Q("8.877495 mm")),
    Sketcher.Constraint("DistanceX", 25, 1, -1, 1, Q("8.346855 mm")),
    Sketcher.Constraint("DistanceX", 30, 2, -1, 1, Q("31.392603 mm")),
    Sketcher.Constraint("DistanceX", 34, 1, -1, 1, Q("71.450613 mm")),
    Sketcher.Constraint("DistanceX", -1, 1, 49, 1, Q("71.450613 mm")),
    Sketcher.Constraint("DistanceX", -1, 1, 51, 1, Q("71.514544 mm")),
    Sketcher.Constraint("DistanceX", 57, 1, -1, 1, Q("8.877495 mm")),
    Sketcher.Constraint("DistanceX", -1, 1, 58, 1, Q("8.346855 mm")),
    Sketcher.Constraint("DistanceX", 63, 2, -1, 1, Q("10.173715 mm")),
    Sketcher.Constraint("DistanceX", -1, 1, 67, 1, Q("73.490634 mm")),
    Sketcher.Constraint("DistanceX", -1, 1, 70, 1, Q("10.975723 mm")),
])
pad1 = body.newObject("PartDesign::Pad", "Pad")
pad1.Profile = sketch1
pad1.Length = 1.6

doc.recompute()
